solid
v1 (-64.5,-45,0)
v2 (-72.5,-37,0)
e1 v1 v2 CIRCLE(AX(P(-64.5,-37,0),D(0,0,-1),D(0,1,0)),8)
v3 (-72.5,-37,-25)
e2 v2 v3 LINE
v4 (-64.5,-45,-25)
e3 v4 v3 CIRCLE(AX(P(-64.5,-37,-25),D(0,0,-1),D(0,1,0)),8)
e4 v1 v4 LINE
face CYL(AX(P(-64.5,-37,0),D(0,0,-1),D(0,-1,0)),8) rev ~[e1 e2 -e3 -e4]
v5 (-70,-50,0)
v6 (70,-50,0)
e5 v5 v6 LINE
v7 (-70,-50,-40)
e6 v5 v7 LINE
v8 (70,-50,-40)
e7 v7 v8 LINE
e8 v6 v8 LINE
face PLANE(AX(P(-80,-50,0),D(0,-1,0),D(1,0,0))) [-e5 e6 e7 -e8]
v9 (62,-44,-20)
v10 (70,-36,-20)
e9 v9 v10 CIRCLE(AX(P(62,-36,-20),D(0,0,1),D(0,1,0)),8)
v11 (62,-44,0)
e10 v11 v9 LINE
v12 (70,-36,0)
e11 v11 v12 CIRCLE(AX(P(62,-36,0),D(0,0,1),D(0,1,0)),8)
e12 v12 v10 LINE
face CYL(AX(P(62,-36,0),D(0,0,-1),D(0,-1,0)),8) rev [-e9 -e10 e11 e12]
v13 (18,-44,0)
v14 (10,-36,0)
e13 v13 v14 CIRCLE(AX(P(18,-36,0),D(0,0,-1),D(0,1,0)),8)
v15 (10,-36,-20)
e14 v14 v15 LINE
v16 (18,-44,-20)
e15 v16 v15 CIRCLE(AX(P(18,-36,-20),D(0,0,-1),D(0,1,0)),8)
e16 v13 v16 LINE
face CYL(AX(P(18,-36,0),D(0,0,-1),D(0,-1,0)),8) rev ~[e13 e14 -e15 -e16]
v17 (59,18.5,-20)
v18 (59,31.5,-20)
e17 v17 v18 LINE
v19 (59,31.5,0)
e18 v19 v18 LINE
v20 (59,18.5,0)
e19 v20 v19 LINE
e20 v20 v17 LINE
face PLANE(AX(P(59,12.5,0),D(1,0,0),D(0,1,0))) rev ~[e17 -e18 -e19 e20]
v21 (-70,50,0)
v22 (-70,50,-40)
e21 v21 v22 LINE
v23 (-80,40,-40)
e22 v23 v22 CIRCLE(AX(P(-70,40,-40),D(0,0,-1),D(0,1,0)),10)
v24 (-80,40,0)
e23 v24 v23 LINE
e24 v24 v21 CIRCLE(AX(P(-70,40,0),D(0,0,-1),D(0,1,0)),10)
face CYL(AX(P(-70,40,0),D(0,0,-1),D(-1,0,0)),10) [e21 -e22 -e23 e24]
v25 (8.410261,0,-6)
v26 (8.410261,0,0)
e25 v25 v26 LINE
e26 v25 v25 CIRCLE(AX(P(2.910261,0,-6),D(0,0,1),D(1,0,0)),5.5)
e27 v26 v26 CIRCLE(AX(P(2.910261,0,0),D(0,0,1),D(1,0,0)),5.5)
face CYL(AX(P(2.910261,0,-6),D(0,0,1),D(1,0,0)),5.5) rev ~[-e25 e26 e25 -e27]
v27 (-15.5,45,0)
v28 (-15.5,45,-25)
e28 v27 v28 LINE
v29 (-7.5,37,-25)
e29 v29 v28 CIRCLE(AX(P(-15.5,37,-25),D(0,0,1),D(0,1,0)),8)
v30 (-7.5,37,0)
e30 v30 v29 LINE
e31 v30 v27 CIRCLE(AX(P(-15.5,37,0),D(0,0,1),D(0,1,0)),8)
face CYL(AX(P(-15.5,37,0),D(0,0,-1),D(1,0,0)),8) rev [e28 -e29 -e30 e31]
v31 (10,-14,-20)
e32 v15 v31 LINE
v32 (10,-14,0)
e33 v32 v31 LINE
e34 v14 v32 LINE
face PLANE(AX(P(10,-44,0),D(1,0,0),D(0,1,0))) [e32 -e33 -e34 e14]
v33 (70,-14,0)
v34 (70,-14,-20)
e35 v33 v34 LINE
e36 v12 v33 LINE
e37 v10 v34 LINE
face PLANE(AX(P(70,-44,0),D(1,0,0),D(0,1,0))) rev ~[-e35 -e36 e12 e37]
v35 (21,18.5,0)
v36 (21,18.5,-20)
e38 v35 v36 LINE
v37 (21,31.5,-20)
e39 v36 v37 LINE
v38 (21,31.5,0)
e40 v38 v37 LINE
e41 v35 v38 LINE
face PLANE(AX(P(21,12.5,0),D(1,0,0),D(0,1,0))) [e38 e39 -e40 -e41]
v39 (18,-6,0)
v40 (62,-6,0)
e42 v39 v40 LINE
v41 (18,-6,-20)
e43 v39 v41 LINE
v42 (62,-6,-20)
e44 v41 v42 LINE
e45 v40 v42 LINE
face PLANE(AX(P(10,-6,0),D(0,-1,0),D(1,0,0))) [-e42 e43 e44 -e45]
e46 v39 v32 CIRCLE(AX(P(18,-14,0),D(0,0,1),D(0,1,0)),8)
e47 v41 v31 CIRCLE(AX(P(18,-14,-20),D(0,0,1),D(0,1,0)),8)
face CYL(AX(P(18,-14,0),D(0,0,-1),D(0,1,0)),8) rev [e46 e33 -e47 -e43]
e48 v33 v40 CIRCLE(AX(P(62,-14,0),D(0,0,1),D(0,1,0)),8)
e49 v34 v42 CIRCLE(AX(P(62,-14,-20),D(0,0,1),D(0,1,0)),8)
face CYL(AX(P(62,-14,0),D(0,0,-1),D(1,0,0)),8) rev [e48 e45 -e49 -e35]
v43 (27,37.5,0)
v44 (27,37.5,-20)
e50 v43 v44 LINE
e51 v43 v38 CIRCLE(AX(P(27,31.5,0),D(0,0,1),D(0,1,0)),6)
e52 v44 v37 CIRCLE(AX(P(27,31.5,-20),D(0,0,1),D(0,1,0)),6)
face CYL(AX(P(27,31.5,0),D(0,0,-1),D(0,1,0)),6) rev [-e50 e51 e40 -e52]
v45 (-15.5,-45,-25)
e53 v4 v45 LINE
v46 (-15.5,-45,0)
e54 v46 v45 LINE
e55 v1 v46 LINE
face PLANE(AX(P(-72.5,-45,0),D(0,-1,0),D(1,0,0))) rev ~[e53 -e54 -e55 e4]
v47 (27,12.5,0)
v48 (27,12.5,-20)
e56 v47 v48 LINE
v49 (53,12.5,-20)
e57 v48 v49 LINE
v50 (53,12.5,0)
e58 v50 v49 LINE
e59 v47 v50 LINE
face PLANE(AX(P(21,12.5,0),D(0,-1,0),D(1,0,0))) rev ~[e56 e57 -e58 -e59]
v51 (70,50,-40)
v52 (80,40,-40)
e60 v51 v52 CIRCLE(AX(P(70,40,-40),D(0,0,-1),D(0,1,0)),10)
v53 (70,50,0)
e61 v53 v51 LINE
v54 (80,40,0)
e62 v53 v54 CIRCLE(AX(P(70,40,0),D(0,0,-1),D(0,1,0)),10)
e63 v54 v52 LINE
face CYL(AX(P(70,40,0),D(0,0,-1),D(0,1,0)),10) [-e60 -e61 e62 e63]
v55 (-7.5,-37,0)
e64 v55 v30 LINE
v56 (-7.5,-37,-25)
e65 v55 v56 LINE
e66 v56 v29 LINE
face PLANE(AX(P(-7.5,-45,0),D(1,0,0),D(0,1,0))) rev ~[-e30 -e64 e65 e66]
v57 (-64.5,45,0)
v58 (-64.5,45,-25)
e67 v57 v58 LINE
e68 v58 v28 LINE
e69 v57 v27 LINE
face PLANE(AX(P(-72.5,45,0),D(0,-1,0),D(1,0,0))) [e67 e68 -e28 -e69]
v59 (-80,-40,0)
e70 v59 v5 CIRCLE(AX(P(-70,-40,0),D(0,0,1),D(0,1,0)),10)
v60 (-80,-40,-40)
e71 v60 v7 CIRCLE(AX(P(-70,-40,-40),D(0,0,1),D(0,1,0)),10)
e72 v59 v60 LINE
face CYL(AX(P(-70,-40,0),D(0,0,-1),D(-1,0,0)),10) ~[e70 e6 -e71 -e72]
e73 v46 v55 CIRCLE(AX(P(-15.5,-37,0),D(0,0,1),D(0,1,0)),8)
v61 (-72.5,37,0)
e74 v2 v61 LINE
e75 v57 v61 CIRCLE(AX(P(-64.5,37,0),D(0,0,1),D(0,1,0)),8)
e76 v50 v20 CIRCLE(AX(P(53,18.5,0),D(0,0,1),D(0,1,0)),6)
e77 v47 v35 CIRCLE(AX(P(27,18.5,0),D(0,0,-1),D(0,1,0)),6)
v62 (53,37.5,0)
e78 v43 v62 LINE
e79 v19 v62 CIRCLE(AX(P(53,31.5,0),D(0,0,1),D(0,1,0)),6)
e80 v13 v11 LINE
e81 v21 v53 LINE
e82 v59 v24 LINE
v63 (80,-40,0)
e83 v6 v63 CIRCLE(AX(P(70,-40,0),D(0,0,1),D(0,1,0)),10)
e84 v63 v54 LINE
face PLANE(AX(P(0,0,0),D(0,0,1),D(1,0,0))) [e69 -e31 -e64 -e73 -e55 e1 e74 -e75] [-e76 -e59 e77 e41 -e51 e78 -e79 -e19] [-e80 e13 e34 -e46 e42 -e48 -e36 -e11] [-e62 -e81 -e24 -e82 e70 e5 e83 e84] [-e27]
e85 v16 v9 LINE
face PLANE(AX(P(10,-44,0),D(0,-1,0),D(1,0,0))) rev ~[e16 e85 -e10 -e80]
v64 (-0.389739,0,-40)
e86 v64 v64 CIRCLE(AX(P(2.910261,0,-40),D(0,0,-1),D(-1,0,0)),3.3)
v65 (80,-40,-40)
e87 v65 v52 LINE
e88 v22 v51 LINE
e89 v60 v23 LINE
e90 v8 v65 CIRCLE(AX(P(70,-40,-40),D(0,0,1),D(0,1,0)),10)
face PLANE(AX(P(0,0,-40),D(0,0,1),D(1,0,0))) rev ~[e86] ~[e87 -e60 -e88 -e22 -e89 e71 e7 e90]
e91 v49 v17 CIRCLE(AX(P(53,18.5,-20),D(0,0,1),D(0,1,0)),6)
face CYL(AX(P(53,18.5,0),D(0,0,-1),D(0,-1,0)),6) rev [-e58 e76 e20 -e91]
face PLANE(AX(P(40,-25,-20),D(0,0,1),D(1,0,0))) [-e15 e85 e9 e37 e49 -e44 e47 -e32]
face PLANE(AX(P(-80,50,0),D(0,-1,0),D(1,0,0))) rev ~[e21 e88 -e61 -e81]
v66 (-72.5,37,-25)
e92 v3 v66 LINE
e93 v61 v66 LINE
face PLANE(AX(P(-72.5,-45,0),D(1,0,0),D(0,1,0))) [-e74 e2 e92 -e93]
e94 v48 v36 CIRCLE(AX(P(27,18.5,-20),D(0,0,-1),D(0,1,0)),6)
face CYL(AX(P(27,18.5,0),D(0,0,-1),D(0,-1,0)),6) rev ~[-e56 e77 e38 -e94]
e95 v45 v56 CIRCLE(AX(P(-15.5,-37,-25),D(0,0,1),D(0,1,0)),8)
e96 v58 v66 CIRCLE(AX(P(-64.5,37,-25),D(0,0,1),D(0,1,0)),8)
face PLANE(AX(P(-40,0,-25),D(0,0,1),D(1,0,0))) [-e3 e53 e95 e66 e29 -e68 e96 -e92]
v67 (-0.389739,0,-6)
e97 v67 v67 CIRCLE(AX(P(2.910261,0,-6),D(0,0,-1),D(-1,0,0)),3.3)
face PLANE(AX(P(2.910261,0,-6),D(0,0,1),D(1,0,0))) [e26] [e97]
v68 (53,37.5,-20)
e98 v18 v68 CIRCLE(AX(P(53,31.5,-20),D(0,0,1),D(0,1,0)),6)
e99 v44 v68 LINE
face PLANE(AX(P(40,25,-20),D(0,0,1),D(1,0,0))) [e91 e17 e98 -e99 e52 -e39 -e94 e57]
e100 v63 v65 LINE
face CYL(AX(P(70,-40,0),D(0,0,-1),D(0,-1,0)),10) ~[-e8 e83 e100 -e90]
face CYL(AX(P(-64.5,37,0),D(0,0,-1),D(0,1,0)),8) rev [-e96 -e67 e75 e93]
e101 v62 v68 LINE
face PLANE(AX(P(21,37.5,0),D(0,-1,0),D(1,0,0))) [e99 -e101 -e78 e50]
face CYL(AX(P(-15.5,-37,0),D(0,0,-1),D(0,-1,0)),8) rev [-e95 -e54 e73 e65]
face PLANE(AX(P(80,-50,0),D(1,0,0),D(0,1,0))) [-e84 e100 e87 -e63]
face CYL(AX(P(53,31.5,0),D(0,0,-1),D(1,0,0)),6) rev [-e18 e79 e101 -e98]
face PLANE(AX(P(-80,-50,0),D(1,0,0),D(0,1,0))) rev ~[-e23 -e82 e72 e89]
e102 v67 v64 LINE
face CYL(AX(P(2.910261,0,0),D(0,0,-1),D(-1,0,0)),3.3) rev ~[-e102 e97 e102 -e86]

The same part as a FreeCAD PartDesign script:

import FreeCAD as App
import Part
import Sketcher
from FreeCAD import Vector
Q = App.Units.Quantity


def edges_at(feature, points):
    """Names of the edges that pass closest to the given points."""
    edges = feature.Shape.Edges
    near = lambda p: min(range(len(edges)), key=lambda i: edges[i].distToShape(Part.Vertex(*p))[0])
    return sorted({f"Edge{near(p) + 1}" for p in points})


def add_polygon(sketch, points):
    """Adds a closed chain of lines whose ends are joined by coincident constraints."""
    first, n = sketch.GeometryCount, len(points)
    for a, b in zip(points, points[1:] + points[:1]):
        sketch.addGeometry(Part.LineSegment(App.Vector(*a, 0), App.Vector(*b, 0)), False)
    for i in range(n):
        sketch.addConstraint(Sketcher.Constraint("Coincident", first + i, 2, first + (i + 1) % n, 1))

doc = App.newDocument("Part")
body = doc.addObject("PartDesign::Body", "Body")

sketch1 = body.newObject("Sketcher::SketchObject", "Sketch")
sketch1.AttachmentSupport = (doc.getObject("XY_Plane"), [""])
sketch1.MapMode = "FlatFace"
add_polygon(sketch1, [(-80, 50), (-80, -50), (80, -50), (80, 50)])
sketch1.addConstraint(Sketcher.Constraint("Vertical", 0))
sketch1.addConstraint(Sketcher.Constraint("Horizontal", 1))
sketch1.addConstraint(Sketcher.Constraint("Vertical", 2))
sketch1.addConstraint(Sketcher.Constraint("Horizontal", 3))
sketch1.addConstraint(Sketcher.Constraint("Symmetric", 0, 2, 2, 2, -1, 1))
sketch1.addConstraint(Sketcher.Constraint("DistanceX", 1, 1, 1, 2, Q("160 mm")))
sketch1.addConstraint(Sketcher.Constraint("DistanceY", 0, 2, 0, 1, Q("100 mm")))
pad1 = body.newObject("PartDesign::Pad", "Pad")
pad1.Profile = sketch1
pad1.Length = 40
pad1.Reversed = True

sketch2 = body.newObject("Sketcher::SketchObject", "Sketch001")
sketch2.AttachmentSupport = (doc.getObject("XY_Plane"), [""])
sketch2.MapMode = "FlatFace"
add_polygon(sketch2, [(-72, 45), (-72, -45), (-8, -45), (-8, 45)])
sketch2.addConstraint(Sketcher.Constraint("Vertical", 0))
sketch2.addConstraint(Sketcher.Constraint("Horizontal", 1))
sketch2.addConstraint(Sketcher.Constraint("Vertical", 2))
sketch2.addConstraint(Sketcher.Constraint("Horizontal", 3))
sketch2.addConstraint(Sketcher.Constraint("DistanceX", 1, 1, 1, 2, Q("65 mm")))
sketch2.addConstraint(Sketcher.Constraint("DistanceY", 0, 2, 0, 1, Q("90 mm")))
sketch2.addConstraint(Sketcher.Constraint("DistanceY", 0, 2, -1, 1, Q("45 mm")))
sketch2.addConstraint(Sketcher.Constraint("DistanceX", 0, 2, -1, 1, Q("72.5 mm")))
pocket1 = body.newObject("PartDesign::Pocket", "Pocket")
pocket1.Profile = sketch2
pocket1.Length = 25
doc.recompute()

fillet = body.newObject("PartDesign::Fillet", "Fillet")
fillet.Base = (pocket1, edges_at(pocket1, [
    (-7.5, 45, -12.5),
    (-7.5, -45, -12.5),
    (-72.5, -45, -12.5),
    (-72.5, 45, -12.5),
]))
fillet.Radius = 8

sketch3 = body.newObject("Sketcher::SketchObject", "Sketch002")
sketch3.AttachmentSupport = (doc.getObject("XY_Plane"), [""])
sketch3.MapMode = "FlatFace"
add_polygon(sketch3, [(10, -6), (10, -44), (70, -44), (70, -6)])
add_polygon(sketch3, [(21, 38), (21, 12), (59, 12), (59, 38)])
sketch3.addConstraint(Sketcher.Constraint("Vertical", 0))
sketch3.addConstraint(Sketcher.Constraint("Horizontal", 1))
sketch3.addConstraint(Sketcher.Constraint("Vertical", 2))
sketch3.addConstraint(Sketcher.Constraint("Horizontal", 3))
sketch3.addConstraint(Sketcher.Constraint("Vertical", 4))
sketch3.addConstraint(Sketcher.Constraint("Horizontal", 5))
sketch3.addConstraint(Sketcher.Constraint("Vertical", 6))
sketch3.addConstraint(Sketcher.Constraint("Horizontal", 7))
sketch3.addConstraint(Sketcher.Constraint("Equal", 7, 0))
sketch3.addConstraint(Sketcher.Constraint("DistanceX", 1, 1, 1, 2, Q("60 mm")))
sketch3.addConstraint(Sketcher.Constraint("DistanceX", 5, 1, 5, 2, Q("38 mm")))
sketch3.addConstraint(Sketcher.Constraint("DistanceY", 4, 2, 4, 1, Q("25 mm")))
sketch3.addConstraint(Sketcher.Constraint("DistanceX", -1, 1, 0, 2, Q("10 mm")))
sketch3.addConstraint(Sketcher.Constraint("DistanceY", 0, 2, -1, 1, Q("44 mm")))
sketch3.addConstraint(Sketcher.Constraint("DistanceX", -1, 1, 4, 2, Q("21 mm")))
sketch3.addConstraint(Sketcher.Constraint("DistanceY", -1, 1, 4, 2, Q("12.5 mm")))
pocket2 = body.newObject("PartDesign::Pocket", "Pocket001")
pocket2.Profile = sketch3
pocket2.Length = 20
doc.recompute()

fillet2 = body.newObject("PartDesign::Fillet", "Fillet001")
fillet2.Base = (pocket2, edges_at(pocket2, [
    (59, 37.5, -10),
    (59, 12.5, -10),
    (21, 12.5, -10),
    (21, 37.5, -10),
]))
fillet2.Radius = 6
doc.recompute()

fillet3 = body.newObject("PartDesign::Fillet", "Fillet002")
fillet3.Base = (fillet2, edges_at(fillet2, [
    (70, -6, -10),
    (70, -44, -10),
    (10, -44, -10),
    (10, -6, -10),
]))
fillet3.Radius = 8
doc.recompute()

fillet4 = body.newObject("PartDesign::Fillet", "Fillet003")
fillet4.Base = (fillet3, edges_at(fillet3, [
    (80, -50, -20),
    (-80, -50, -20),
    (-80, 50, -20),
    (80, 50, -20),
]))
fillet4.Radius = 10

sketch4 = body.newObject("Sketcher::SketchObject", "Sketch003")
sketch4.AttachmentSupport = (doc.getObject("XY_Plane"), [""])
sketch4.MapMode = "FlatFace"
sketch4.addGeometry(Part.Circle(Vector(2.9, 0, 0), Vector(0, 0, 1), 3.3), False)
sketch4.addConstraint(Sketcher.Constraint("PointOnObject", 0, 3, -1))
sketch4.addConstraint(Sketcher.Constraint("Diameter", 0, Q("6.6 mm")))
sketch4.addConstraint(Sketcher.Constraint("DistanceX", -1, 1, 0, 3, Q("2.910261 mm")))
doc.recompute()
hole = body.newObject("PartDesign::Hole", "Hole")
hole.Profile = sketch4
hole.ThreadType = "None"
hole.Diameter = 6.6
hole.DepthType = "ThroughAll"
hole.HoleCutType = "Counterbore"
hole.HoleCutDiameter = 11
hole.HoleCutDepth = 6

doc.recompute()
